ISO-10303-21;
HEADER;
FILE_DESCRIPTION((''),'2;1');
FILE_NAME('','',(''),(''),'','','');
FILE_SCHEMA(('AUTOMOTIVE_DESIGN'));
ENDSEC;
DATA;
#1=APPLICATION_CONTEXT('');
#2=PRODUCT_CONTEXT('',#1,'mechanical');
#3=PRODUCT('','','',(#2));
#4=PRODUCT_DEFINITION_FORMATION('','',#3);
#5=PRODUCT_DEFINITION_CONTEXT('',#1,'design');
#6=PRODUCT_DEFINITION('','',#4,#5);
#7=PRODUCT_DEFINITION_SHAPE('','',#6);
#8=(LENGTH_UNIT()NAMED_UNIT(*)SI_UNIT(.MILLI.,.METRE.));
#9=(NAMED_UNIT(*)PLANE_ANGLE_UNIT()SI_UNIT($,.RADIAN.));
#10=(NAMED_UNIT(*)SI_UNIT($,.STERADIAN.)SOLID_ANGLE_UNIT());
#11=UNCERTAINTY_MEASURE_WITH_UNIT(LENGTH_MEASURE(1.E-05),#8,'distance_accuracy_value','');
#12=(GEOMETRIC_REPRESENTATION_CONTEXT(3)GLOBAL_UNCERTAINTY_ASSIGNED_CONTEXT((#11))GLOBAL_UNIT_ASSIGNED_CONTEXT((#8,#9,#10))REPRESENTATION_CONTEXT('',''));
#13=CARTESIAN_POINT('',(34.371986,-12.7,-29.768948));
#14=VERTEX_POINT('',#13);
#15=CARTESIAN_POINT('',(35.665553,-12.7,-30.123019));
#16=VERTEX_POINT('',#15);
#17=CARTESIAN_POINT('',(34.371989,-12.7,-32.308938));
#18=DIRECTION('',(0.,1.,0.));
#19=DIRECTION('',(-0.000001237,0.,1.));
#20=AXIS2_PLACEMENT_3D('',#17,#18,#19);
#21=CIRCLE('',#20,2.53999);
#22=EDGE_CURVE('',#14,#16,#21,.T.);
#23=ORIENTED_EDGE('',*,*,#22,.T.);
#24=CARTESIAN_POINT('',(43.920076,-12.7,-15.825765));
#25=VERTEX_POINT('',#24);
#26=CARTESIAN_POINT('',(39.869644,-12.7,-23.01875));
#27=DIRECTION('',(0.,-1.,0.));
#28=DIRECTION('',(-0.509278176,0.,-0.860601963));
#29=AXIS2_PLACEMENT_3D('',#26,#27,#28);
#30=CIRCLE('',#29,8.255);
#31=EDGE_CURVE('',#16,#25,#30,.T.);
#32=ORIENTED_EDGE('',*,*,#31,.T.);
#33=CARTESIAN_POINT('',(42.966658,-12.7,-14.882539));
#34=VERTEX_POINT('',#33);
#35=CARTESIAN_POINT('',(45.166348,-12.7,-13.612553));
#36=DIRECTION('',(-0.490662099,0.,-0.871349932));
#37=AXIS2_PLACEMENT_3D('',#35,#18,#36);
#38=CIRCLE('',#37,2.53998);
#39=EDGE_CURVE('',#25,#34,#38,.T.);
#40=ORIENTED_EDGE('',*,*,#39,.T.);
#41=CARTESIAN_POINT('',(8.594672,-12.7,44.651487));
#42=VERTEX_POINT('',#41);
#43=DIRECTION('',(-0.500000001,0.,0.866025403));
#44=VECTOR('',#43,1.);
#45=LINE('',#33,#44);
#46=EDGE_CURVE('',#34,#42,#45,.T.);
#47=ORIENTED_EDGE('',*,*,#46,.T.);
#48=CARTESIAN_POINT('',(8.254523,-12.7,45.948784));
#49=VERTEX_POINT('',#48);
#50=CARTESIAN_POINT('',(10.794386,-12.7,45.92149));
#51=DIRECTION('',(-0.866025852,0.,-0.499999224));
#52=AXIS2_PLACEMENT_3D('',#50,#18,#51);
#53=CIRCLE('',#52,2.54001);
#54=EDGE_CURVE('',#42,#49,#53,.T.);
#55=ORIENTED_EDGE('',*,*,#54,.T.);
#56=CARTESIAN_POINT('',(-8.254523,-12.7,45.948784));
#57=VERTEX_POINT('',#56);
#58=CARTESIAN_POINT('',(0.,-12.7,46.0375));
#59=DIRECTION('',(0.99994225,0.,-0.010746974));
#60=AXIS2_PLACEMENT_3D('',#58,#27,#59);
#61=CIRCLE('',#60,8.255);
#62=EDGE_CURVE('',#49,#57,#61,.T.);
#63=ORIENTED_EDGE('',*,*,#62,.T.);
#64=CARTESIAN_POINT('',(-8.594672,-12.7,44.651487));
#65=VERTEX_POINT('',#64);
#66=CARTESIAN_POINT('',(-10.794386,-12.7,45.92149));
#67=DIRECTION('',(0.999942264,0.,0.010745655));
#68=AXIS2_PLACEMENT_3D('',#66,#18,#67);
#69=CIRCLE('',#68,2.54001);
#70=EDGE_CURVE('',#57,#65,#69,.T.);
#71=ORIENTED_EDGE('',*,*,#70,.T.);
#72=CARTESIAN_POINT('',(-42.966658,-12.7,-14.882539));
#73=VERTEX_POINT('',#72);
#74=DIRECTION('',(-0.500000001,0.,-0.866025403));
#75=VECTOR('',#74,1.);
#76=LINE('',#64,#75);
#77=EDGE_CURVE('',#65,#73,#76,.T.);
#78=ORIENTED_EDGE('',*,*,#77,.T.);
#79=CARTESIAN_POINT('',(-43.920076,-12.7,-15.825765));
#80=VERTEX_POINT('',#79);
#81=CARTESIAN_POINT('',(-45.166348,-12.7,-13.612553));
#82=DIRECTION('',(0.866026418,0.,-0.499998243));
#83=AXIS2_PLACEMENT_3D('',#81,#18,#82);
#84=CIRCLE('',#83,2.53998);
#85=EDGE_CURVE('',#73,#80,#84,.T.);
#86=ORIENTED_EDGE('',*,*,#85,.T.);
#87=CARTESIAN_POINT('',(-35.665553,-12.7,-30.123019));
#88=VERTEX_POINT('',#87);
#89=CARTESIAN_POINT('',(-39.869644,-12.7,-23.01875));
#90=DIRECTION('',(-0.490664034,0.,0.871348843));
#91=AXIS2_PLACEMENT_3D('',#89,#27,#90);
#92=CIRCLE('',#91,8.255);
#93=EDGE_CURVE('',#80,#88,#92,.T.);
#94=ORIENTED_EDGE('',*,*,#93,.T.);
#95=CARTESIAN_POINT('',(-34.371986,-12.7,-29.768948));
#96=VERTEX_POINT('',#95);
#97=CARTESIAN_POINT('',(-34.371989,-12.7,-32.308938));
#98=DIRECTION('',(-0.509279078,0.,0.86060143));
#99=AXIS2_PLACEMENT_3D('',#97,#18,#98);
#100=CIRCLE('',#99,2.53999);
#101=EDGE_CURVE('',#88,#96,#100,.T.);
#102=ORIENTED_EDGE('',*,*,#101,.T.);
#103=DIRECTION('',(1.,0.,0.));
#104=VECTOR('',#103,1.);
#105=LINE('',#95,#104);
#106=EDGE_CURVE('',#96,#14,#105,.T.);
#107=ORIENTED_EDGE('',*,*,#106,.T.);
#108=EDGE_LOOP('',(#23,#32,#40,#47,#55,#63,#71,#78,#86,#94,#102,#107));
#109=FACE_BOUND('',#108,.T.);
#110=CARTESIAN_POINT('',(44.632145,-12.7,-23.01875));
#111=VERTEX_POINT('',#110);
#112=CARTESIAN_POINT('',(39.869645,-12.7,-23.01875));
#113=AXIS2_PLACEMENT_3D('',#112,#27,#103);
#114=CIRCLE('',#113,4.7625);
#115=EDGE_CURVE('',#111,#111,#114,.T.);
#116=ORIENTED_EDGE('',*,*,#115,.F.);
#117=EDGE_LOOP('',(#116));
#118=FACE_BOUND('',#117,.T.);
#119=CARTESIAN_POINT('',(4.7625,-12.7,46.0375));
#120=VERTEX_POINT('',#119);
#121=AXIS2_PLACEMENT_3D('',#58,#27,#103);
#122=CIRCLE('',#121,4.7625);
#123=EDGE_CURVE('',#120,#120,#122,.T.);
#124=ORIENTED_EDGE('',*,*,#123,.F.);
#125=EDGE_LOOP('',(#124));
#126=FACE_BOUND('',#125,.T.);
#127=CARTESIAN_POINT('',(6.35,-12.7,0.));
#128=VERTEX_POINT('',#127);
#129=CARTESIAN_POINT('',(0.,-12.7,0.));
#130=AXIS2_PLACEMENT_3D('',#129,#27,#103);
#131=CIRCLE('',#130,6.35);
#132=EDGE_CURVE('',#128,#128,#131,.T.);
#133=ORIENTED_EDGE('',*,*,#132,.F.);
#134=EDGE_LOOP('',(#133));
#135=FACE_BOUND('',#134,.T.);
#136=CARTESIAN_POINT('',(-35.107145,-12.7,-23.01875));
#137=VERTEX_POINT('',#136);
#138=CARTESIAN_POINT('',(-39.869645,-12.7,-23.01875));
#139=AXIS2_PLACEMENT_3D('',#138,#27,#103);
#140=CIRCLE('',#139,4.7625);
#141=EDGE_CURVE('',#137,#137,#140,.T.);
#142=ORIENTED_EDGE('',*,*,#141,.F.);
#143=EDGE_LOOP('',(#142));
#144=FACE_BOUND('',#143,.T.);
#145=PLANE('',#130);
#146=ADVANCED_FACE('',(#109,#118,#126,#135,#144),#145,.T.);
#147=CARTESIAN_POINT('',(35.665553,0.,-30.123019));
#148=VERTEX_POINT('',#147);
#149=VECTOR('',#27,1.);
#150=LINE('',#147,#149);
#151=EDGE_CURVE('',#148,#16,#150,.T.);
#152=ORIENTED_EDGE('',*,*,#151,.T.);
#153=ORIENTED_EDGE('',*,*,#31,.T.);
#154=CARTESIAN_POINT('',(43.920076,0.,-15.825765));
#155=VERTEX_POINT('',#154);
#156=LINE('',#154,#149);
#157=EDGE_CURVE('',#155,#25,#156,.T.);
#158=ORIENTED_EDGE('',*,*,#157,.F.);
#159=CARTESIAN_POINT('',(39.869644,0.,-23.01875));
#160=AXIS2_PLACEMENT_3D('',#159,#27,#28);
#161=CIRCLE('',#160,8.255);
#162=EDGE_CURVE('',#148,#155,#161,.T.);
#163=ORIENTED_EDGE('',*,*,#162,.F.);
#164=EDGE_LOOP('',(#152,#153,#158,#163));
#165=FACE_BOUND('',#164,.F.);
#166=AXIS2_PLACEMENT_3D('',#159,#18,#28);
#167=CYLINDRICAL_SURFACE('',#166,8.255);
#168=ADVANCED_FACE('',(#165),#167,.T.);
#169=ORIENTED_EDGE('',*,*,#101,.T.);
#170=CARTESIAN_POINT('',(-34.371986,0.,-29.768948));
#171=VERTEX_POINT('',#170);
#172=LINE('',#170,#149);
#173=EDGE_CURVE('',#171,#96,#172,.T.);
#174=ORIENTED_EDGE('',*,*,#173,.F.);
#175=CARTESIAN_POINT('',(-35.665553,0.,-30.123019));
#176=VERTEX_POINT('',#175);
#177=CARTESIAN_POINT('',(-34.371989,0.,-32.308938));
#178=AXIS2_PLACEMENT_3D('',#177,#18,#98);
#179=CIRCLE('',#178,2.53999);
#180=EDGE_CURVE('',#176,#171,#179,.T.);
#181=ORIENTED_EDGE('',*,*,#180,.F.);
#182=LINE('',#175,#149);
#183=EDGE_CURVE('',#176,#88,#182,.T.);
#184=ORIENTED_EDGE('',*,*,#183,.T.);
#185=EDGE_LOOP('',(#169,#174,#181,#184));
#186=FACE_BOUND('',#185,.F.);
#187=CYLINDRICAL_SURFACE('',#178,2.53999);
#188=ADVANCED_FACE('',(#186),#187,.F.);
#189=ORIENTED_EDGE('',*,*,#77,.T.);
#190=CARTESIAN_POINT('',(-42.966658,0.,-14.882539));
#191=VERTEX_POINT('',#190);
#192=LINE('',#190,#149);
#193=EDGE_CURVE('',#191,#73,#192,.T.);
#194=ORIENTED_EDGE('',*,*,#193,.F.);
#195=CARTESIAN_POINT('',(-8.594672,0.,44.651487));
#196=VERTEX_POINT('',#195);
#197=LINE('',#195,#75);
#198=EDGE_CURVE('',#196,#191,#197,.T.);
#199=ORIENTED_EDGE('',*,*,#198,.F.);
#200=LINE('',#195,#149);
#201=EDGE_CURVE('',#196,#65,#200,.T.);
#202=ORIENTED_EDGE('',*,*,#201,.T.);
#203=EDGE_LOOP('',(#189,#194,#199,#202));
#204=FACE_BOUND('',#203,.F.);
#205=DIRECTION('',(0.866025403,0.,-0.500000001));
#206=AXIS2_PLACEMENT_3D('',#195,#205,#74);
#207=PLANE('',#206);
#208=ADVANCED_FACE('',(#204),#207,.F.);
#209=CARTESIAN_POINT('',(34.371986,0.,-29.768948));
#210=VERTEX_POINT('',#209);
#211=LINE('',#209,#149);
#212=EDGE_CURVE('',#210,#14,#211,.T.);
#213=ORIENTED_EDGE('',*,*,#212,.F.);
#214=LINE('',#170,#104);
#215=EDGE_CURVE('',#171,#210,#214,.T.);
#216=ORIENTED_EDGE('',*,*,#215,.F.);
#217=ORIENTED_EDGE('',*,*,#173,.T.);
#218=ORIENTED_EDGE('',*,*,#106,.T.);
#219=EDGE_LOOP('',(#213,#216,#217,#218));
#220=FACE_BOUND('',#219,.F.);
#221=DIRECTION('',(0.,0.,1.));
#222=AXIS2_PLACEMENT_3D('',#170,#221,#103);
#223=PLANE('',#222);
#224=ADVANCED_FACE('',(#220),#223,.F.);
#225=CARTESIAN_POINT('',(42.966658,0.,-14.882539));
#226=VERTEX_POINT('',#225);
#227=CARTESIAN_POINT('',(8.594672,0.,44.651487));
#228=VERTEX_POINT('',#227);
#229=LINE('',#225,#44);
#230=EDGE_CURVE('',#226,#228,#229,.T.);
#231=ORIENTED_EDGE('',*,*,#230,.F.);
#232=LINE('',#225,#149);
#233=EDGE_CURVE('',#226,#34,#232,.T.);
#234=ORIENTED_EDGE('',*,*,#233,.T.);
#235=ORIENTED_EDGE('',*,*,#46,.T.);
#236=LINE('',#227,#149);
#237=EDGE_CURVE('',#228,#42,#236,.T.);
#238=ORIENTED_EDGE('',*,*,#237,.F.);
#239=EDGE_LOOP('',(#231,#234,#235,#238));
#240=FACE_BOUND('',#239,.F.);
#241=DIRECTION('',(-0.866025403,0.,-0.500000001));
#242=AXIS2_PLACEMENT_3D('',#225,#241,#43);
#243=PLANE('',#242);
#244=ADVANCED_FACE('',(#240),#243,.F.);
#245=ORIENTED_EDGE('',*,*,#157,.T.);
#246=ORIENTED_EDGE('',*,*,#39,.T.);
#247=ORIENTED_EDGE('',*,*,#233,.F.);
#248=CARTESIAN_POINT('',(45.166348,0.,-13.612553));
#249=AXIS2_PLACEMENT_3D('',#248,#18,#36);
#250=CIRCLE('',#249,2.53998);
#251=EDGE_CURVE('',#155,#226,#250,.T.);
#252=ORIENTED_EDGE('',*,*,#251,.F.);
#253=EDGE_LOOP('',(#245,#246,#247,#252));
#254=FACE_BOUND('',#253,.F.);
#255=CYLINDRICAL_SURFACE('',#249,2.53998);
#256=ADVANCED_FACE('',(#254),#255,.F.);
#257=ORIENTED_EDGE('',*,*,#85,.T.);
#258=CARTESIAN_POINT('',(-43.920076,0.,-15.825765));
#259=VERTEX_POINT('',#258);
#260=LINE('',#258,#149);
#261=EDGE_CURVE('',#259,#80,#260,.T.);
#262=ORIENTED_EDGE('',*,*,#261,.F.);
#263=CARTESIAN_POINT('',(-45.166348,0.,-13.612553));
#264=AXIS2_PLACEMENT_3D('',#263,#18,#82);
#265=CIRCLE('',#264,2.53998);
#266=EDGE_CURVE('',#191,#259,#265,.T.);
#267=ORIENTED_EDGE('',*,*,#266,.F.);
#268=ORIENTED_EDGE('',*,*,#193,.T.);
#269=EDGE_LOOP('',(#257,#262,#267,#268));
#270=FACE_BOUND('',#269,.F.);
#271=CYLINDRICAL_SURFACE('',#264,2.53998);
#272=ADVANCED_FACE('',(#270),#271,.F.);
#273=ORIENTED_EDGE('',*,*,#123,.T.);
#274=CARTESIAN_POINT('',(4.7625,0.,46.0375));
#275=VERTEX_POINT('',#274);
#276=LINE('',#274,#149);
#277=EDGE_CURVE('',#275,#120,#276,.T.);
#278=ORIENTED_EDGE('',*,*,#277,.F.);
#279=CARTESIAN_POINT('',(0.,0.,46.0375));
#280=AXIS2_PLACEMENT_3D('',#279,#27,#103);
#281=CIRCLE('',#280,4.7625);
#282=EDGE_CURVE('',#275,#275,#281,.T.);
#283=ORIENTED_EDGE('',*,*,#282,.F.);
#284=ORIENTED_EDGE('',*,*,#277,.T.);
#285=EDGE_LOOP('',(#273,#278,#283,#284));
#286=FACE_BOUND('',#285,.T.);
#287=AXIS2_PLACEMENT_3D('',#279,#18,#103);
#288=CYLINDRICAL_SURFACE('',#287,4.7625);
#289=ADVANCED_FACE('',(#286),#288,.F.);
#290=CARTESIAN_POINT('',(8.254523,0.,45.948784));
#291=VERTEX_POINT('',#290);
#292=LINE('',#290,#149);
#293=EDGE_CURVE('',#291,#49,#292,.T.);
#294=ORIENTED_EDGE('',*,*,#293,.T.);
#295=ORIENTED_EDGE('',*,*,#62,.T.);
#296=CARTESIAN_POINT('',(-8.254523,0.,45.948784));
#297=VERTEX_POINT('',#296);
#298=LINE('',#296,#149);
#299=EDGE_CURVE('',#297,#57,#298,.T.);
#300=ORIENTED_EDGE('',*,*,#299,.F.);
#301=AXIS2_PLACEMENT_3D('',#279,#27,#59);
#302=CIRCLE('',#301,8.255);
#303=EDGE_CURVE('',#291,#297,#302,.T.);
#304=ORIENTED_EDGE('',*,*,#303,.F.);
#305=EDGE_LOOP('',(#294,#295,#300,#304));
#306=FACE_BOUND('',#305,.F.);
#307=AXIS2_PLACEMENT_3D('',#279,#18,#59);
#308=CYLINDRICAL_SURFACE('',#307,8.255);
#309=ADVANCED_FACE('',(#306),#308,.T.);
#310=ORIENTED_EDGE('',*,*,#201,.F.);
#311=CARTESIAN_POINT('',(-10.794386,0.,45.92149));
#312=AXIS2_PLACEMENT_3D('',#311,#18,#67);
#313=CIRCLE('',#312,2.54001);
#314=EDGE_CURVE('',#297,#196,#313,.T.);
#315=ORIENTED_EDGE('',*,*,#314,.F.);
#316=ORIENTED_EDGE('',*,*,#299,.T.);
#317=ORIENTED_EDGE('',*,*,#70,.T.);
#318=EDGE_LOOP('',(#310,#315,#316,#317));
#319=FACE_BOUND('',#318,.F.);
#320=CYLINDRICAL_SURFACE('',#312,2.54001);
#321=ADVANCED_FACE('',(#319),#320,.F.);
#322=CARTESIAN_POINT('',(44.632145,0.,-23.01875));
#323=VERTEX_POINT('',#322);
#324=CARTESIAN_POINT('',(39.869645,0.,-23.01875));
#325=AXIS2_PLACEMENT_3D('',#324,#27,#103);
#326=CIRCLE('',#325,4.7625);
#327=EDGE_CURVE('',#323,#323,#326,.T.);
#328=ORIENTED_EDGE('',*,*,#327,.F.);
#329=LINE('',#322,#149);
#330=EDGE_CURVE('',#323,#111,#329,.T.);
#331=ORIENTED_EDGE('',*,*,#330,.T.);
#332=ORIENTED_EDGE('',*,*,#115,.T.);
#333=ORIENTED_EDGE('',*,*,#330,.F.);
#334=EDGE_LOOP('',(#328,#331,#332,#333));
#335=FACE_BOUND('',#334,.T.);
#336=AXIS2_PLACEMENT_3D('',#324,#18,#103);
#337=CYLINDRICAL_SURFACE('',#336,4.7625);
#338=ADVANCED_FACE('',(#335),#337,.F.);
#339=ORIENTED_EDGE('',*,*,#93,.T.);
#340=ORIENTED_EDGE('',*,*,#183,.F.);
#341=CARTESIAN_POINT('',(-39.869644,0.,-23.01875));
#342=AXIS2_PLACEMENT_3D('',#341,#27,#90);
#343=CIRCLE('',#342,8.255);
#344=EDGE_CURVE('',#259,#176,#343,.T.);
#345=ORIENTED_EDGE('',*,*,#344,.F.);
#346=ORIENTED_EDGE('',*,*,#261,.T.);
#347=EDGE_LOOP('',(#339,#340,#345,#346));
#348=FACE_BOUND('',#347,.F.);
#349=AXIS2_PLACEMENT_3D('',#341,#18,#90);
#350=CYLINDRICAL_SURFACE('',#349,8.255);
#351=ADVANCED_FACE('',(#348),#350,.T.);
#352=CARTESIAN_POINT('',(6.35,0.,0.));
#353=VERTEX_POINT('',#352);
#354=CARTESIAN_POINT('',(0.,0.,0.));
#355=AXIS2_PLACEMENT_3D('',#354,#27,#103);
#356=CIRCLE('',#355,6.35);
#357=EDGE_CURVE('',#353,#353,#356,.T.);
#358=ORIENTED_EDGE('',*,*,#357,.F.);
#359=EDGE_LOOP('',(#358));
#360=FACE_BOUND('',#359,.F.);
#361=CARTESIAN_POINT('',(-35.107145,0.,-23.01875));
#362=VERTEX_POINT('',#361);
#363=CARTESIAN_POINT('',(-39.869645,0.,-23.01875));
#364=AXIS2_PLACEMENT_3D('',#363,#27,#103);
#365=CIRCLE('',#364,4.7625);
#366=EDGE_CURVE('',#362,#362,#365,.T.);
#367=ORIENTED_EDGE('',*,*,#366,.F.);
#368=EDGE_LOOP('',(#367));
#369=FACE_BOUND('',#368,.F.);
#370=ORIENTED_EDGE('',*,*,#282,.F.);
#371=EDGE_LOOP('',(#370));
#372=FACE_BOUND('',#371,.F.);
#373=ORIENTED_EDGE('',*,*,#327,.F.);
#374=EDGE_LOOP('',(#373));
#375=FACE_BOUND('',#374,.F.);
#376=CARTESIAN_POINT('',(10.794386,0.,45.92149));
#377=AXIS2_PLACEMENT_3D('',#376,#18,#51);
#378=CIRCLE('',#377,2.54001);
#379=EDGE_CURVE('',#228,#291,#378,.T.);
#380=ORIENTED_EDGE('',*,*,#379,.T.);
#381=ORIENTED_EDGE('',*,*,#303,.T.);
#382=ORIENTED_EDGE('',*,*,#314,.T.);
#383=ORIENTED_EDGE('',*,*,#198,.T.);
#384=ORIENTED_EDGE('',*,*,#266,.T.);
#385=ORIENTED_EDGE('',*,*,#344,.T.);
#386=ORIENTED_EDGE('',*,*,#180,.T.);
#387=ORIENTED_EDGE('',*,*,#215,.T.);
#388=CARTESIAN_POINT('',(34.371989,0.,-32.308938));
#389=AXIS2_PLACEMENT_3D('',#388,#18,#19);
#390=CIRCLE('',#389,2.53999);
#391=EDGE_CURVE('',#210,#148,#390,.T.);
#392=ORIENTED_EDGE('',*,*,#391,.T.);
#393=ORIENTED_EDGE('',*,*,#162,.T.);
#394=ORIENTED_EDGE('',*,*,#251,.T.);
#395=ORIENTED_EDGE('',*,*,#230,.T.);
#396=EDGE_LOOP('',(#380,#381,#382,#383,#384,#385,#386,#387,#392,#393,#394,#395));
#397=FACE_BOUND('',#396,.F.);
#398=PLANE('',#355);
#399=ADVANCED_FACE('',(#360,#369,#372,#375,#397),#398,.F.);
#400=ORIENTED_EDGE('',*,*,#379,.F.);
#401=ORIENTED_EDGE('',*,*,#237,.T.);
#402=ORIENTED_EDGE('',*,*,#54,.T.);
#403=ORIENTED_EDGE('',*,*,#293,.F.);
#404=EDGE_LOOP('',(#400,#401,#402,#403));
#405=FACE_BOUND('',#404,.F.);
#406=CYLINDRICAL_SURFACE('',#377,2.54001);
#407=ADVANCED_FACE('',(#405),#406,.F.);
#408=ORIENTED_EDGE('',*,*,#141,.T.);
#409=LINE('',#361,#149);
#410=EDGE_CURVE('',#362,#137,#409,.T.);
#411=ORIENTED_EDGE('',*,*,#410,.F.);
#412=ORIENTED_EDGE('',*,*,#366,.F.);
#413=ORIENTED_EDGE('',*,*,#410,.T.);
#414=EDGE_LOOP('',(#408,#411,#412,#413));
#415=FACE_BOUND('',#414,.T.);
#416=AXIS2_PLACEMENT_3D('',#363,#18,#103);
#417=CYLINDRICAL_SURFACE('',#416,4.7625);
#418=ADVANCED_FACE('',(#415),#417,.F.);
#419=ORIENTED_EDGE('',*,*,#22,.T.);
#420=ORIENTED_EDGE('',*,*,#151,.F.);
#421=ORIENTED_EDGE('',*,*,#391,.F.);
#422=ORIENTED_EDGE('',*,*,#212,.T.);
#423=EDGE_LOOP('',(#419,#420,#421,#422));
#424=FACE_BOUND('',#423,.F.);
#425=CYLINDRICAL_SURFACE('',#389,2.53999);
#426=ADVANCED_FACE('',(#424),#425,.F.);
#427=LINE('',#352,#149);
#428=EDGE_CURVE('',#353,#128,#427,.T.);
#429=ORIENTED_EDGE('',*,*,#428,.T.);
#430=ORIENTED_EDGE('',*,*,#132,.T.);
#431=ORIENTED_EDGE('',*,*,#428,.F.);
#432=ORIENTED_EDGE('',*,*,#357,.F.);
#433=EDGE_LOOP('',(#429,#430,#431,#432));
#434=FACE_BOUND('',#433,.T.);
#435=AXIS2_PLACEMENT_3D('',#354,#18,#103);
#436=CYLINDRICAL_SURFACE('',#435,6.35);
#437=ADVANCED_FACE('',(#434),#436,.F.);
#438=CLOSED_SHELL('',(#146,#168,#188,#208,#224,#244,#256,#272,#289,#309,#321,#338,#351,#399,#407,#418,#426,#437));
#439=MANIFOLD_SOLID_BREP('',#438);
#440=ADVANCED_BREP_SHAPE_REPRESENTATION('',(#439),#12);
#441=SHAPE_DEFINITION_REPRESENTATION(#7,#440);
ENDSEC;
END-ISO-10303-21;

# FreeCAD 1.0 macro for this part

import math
import FreeCAD as App
import Part
import Sketcher
Q = App.Units.Quantity

doc = App.newDocument("Part")
body = doc.addObject("PartDesign::Body", "Body")

# Sketch on XZ plane
sketch1 = doc.addObject("Sketcher::SketchObject", "Sketch")
body.addObject(sketch1)
sketch1.AttachmentSupport = (doc.XZ_Plane, [""])
sketch1.MapMode = "FlatFace"
sketch1.addGeometry([
    Part.ArcOfCircle(Part.Circle(App.Vector(10.8, 45.9, 0), App.Vector(0, 0, 1), 2.5), math.radians(179), math.radians(210)),  # 0
    Part.ArcOfCircle(Part.Circle(App.Vector(0, 46, 0), App.Vector(0, 0, 1), 8.3), math.radians(-1), math.radians(181)),  # 1
    Part.ArcOfCircle(Part.Circle(App.Vector(-10.8, 45.9, 0), App.Vector(0, 0, 1), 2.5), math.radians(-30), math.radians(1)),  # 2
    Part.LineSegment(App.Vector(-8.6, 44.7, 0), App.Vector(-43, -14.9, 0)),  # 3
    Part.ArcOfCircle(Part.Circle(App.Vector(-45.2, -13.6, 0), App.Vector(0, 0, 1), 2.5), math.radians(-61), math.radians(-30)),  # 4
    Part.ArcOfCircle(Part.Circle(App.Vector(-39.9, -23, 0), App.Vector(0, 0, 1), 8.3), math.radians(119), math.radians(301)),  # 5
    Part.ArcOfCircle(Part.Circle(App.Vector(-34.4, -32.3, 0), App.Vector(0, 0, 1), 2.5), math.radians(90), math.radians(121)),  # 6
    Part.LineSegment(App.Vector(-34.4, -29.8, 0), App.Vector(34.4, -29.8, 0)),  # 7
    Part.ArcOfCircle(Part.Circle(App.Vector(34.4, -32.3, 0), App.Vector(0, 0, 1), 2.5), math.radians(59), math.radians(90)),  # 8
    Part.ArcOfCircle(Part.Circle(App.Vector(39.9, -23, 0), App.Vector(0, 0, 1), 8.3), math.radians(-121), math.radians(61)),  # 9
    Part.ArcOfCircle(Part.Circle(App.Vector(45.2, -13.6, 0), App.Vector(0, 0, 1), 2.5), math.radians(-150), math.radians(-119)),  # 10
    Part.LineSegment(App.Vector(43, -14.9, 0), App.Vector(8.6, 44.7, 0)),  # 11
    Part.Circle(App.Vector(-39.9, -23, 0), App.Vector(0, 0, 1), 4.8),  # 12
    Part.Circle(App.Vector(0, 0, 0), App.Vector(0, 0, 1), 6.3),  # 13
    Part.Circle(App.Vector(39.9, -23, 0), App.Vector(0, 0, 1), 4.8),  # 14
    Part.Circle(App.Vector(0, 46, 0), App.Vector(0, 0, 1), 4.8),  # 15
], False)
sketch1.addConstraint([
    Sketcher.Constraint("Tangent", 0, 1, 1, 1),
    Sketcher.Constraint("Tangent", 1, 2, 2, 2),
    Sketcher.Constraint("Tangent", 2, 1, 3, 1),
    Sketcher.Constraint("Coincident", 3, 2, 4, 2),
    Sketcher.Constraint("Coincident", 4, 1, 5, 1),
    Sketcher.Constraint("Tangent", 5, 2, 6, 2),
    Sketcher.Constraint("Tangent", 6, 1, 7, 1),
    Sketcher.Constraint("Tangent", 7, 2, 8, 2),
    Sketcher.Constraint("Tangent", 8, 1, 9, 1),
    Sketcher.Constraint("Coincident", 9, 2, 10, 2),
    Sketcher.Constraint("Coincident", 10, 1, 11, 1),
    Sketcher.Constraint("Tangent", 11, 2, 0, 2),
    Sketcher.Constraint("Horizontal", 7),
    Sketcher.Constraint("Coincident", 13, 3, -1, 1),
    Sketcher.Constraint("Coincident", 12, 3, 5, 3),
    Sketcher.Constraint("Coincident", 14, 3, 9, 3),
    Sketcher.Constraint("Coincident", 15, 3, 1, 3),
    Sketcher.Constraint("Equal", 0, 2),
    Sketcher.Constraint("Equal", 1, 5),
    Sketcher.Constraint("Equal", 6, 8),
    Sketcher.Constraint("Equal", 5, 9),
    Sketcher.Constraint("Equal", 4, 10),
    Sketcher.Constraint("Equal", 12, 14),
    Sketcher.Constraint("Equal", 14, 15),
    Sketcher.Constraint("Symmetric", 0, 3, 2, 3, -2),
    Sketcher.Constraint("Symmetric", 5, 3, 9, 3, -2),
    Sketcher.Constraint("Symmetric", 3, 2, 10, 1, -2),
    Sketcher.Constraint("Horizontal", 4, 1, 9, 2),
    Sketcher.Constraint("Diameter", 13, Q("0.5 in")),
    Sketcher.Constraint("Diameter", 12, Q("0.375 in")),
    Sketcher.Constraint("Angle", 3, Q("-120 deg")),
    Sketcher.Constraint("Radius", 1, Q("0.325 in")),
    Sketcher.Constraint("DistanceY", 2, 1, 2, 3, Q("0.0500001 in")),
    Sketcher.Constraint("DistanceY", -1, 1, 1, 3, Q("1.8125 in")),
    Sketcher.Constraint("DistanceY", 5, 3, -1, 1, Q("0.90625 in")),
    Sketcher.Constraint("Radius", 4, Q("2.53998 mm")),
    Sketcher.Constraint("Radius", 6, Q("2.53999 mm")),
    Sketcher.Constraint("DistanceX", 7, 1, 7, 2, Q("68.743972 mm")),
    Sketcher.Constraint("DistanceY", 6, 3, 3, 2, Q("17.426399 mm")),
    Sketcher.Constraint("DistanceY", 6, 1, 5, 3, Q("6.750198 mm")),
    Sketcher.Constraint("Distance", 3, Q("68.743972 mm")),
    Sketcher.Constraint("DistanceX", 4, 1, 3, 2, Q("0.953418 mm")),
])
pad1 = doc.addObject("PartDesign::Pad", "Pad")
body.addObject(pad1)
pad1.Profile = sketch1
pad1.Length = Q("0.5 in")

doc.recompute()
